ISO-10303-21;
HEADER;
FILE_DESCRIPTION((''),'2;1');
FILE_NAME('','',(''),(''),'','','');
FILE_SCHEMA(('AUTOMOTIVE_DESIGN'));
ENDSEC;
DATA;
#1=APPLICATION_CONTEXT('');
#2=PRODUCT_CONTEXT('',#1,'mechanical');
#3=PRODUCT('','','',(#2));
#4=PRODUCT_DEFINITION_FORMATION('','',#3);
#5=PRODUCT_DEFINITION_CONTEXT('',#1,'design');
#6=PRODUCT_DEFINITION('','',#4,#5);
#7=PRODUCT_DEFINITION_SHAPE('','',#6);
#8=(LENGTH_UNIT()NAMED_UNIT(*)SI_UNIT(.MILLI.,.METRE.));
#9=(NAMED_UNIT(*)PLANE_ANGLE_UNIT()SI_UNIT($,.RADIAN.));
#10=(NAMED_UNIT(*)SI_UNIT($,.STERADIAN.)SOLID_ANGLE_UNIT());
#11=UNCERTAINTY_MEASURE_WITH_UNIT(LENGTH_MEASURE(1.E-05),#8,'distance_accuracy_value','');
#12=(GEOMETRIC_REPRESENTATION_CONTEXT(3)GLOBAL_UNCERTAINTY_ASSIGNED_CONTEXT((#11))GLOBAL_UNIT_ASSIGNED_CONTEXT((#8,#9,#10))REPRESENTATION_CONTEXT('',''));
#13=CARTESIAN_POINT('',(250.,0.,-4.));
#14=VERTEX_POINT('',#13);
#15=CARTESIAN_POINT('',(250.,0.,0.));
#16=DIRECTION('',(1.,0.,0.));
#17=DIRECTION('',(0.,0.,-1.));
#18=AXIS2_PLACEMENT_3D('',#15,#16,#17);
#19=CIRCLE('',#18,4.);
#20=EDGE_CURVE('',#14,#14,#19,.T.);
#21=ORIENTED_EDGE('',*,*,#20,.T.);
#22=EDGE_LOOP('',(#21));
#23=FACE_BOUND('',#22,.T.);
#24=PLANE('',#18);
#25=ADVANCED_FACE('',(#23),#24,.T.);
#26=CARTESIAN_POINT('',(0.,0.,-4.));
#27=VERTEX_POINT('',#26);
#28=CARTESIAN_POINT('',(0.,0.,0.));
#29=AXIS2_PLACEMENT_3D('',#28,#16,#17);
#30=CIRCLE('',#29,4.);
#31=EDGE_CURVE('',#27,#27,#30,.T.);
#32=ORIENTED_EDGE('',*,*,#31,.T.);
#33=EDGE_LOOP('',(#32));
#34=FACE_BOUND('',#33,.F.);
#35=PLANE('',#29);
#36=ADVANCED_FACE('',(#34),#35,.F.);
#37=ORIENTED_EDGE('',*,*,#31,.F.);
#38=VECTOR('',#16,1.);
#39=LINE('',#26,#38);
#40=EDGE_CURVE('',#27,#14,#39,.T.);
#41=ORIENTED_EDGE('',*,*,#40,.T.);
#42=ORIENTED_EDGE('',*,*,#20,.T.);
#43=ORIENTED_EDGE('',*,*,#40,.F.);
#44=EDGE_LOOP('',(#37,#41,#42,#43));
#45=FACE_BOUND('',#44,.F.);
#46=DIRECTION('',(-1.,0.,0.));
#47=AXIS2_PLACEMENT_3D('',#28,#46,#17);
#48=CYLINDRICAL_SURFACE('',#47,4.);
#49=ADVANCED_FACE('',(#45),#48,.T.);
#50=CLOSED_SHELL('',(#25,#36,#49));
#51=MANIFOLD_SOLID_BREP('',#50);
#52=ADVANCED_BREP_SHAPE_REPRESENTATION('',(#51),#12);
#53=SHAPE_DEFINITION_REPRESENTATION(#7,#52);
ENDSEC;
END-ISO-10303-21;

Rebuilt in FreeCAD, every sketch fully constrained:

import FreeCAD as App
import Part
import Sketcher
from FreeCAD import Vector
Q = App.Units.Quantity

doc = App.newDocument("Part")
params = doc.addObject("Spreadsheet::Sheet", "Params")
for row, (alias, value) in enumerate([
    ("sketch1_diameter", "8 mm"),
    ("pad1_length", "250 mm"),
], start=1):
    params.set(f"A{row}", alias)
    params.set(f"B{row}", "=" + value)
    params.setAlias(f"B{row}", alias)

body = doc.addObject("PartDesign::Body", "Body")

# Sketch on YZ plane
sketch1 = body.newObject("Sketcher::SketchObject", "Sketch")
sketch1.AttachmentSupport = (doc.getObject("YZ_Plane"), [""])
sketch1.MapMode = "FlatFace"
sketch1.addGeometry(Part.Circle(Vector(0, 0, 0), Vector(0, 0, 1), 4), False)
sketch1.addConstraint([
    Sketcher.Constraint("Coincident", 0, 3, -1, 1),
    Sketcher.Constraint("Diameter", 0, Q("8 mm")),
])
sketch1.setExpression("Constraints[1]", "Params.sketch1_diameter")
pad1 = body.newObject("PartDesign::Pad", "Pad")
pad1.Profile = sketch1
pad1.setExpression("Length", "Params.pad1_length")

doc.recompute()
